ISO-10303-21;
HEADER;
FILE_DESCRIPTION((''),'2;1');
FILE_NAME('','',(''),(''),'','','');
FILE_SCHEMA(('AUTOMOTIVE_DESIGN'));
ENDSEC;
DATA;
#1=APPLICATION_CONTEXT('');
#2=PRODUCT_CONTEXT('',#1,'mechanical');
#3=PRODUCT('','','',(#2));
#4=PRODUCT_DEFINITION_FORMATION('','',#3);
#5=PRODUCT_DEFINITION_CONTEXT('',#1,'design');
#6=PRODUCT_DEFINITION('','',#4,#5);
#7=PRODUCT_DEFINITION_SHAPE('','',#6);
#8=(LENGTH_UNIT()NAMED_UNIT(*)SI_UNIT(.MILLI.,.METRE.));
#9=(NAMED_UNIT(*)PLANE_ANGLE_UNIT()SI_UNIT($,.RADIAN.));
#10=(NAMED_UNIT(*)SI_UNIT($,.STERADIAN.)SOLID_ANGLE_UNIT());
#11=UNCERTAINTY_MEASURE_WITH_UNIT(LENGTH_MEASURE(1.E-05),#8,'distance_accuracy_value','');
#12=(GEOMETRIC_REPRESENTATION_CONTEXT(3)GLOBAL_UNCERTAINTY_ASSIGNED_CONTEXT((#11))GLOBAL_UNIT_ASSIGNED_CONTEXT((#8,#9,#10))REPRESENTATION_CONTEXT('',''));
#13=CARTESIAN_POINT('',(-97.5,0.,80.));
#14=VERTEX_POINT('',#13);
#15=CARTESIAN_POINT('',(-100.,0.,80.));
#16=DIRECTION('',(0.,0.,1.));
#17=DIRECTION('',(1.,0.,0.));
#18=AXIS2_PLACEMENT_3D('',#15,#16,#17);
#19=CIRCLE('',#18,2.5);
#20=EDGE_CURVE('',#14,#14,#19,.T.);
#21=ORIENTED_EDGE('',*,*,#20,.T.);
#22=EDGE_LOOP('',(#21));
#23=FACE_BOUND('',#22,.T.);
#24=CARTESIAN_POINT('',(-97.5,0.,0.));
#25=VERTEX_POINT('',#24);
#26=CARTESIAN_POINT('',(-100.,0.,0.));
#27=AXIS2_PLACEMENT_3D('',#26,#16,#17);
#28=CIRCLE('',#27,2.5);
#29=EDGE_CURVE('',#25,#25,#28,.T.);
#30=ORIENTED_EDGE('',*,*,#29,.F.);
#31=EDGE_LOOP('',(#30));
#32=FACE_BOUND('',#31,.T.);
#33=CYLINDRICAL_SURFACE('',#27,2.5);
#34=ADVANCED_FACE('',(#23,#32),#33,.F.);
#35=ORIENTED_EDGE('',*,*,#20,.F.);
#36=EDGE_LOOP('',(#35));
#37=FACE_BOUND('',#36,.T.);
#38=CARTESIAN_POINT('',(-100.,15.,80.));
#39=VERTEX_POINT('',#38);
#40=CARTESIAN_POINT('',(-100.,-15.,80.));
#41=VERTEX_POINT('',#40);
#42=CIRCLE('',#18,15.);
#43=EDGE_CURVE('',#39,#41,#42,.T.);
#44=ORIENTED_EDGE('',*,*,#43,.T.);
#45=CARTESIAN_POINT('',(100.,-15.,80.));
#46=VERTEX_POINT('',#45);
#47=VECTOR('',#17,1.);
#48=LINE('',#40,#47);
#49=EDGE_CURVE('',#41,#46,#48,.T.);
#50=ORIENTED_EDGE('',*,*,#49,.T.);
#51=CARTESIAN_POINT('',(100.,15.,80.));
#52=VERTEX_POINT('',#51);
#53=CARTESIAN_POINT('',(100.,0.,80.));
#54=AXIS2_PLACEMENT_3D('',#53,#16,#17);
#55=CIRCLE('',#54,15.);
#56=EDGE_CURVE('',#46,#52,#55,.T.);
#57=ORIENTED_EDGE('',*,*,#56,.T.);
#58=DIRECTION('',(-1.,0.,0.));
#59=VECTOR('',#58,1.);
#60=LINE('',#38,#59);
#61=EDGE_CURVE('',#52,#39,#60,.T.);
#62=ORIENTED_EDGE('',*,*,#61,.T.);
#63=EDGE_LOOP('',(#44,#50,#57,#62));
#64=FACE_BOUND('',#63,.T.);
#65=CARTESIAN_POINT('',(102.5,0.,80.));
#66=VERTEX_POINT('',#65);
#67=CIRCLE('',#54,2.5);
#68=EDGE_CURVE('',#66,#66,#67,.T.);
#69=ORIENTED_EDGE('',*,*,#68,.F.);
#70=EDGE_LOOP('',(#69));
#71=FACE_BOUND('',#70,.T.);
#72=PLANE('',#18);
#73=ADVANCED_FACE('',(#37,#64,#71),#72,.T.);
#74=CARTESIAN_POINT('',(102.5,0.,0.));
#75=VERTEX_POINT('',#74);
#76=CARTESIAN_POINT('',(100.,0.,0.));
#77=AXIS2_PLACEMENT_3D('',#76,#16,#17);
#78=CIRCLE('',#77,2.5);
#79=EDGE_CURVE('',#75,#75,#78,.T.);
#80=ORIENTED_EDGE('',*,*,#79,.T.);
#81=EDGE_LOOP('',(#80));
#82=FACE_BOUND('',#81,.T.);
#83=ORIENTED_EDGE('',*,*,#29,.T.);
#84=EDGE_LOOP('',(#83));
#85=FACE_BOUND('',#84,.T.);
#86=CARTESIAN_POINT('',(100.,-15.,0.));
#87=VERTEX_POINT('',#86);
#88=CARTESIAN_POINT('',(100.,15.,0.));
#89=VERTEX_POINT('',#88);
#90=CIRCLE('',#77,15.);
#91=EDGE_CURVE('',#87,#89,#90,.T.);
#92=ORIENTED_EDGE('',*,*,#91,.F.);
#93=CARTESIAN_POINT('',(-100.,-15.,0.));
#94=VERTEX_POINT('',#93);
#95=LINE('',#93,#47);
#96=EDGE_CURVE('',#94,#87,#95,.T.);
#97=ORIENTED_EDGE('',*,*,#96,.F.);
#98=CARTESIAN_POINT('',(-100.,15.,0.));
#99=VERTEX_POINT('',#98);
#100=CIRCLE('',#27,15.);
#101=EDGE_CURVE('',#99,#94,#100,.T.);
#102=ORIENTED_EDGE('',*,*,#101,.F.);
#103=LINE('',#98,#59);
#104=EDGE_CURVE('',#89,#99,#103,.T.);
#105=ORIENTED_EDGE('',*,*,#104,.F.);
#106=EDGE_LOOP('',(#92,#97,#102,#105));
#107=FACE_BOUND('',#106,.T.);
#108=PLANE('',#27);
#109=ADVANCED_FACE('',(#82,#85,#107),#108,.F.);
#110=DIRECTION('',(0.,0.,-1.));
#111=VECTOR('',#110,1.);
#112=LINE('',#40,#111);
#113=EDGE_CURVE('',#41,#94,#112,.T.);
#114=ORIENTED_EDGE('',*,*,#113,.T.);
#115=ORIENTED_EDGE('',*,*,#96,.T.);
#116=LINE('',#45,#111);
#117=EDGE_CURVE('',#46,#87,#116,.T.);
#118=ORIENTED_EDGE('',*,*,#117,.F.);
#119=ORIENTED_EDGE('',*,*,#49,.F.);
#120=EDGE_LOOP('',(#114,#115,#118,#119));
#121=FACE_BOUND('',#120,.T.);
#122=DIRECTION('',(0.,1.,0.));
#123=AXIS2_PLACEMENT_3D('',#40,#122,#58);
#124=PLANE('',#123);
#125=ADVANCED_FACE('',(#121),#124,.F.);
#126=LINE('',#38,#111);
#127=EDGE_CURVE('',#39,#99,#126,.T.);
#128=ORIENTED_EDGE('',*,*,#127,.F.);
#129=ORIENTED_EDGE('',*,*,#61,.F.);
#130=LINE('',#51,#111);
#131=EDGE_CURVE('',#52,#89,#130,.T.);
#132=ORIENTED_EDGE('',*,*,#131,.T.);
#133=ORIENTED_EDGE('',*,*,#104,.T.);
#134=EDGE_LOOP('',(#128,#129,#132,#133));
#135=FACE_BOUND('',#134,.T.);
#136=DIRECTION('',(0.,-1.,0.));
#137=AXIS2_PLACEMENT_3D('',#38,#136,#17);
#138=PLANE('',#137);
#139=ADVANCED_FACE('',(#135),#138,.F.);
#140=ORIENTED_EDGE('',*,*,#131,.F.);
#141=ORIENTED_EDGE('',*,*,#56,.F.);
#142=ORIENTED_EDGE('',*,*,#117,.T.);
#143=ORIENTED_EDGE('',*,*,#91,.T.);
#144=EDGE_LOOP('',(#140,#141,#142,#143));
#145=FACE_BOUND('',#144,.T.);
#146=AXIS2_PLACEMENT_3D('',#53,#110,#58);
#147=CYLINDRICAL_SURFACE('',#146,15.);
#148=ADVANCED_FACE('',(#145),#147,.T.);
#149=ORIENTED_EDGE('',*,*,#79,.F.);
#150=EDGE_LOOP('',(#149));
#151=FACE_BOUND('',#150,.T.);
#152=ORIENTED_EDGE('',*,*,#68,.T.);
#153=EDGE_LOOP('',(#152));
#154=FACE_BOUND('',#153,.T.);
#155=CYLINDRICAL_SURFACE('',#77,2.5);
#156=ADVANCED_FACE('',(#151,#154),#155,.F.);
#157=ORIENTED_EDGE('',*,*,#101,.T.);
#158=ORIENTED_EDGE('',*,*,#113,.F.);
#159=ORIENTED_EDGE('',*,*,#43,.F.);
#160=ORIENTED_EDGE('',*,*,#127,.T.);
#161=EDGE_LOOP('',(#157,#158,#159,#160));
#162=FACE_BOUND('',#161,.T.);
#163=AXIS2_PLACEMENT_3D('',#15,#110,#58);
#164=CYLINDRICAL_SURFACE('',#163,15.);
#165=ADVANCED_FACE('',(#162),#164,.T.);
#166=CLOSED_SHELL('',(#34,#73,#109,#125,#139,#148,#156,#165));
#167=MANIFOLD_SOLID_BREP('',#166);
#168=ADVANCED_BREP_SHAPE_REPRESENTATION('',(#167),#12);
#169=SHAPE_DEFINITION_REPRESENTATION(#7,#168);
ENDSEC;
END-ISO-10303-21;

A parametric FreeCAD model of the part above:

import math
import FreeCAD as App
import Part
import Sketcher

V = App.Vector
Q = App.Units.Quantity

doc = App.newDocument("Part")
params = doc.addObject("Spreadsheet::Sheet", "Params")
for row, (alias, value) in enumerate([
    ("sketch1_radius", "15 mm"),
    ("sketch1_width", "200 mm"),
    ("pad1_length", "80 mm"),
    ("sketch2_diameter", "5 mm"),
], start=1):
    params.set(f"A{row}", alias)
    params.set(f"B{row}", "=" + value)
    params.setAlias(f"B{row}", alias)

body = doc.addObject("PartDesign::Body", "Body")

# Sketch on XY plane
sketch1 = body.newObject("Sketcher::SketchObject", "Sketch")
sketch1.AttachmentSupport = (doc.getObject("XY_Plane"), [""])
sketch1.MapMode = "FlatFace"
sketch1.addGeometry([
    Part.LineSegment(V(100, 15, 0), V(-100, 15, 0)),
    Part.ArcOfCircle(Part.Circle(V(-100, 0, 0), V(0, 0, 1), 15), math.radians(90), math.radians(270)),
    Part.LineSegment(V(-100, -15, 0), V(100, -15, 0)),
    Part.ArcOfCircle(Part.Circle(V(100, 0, 0), V(0, 0, 1), 15), math.radians(-90), math.radians(90)),
], False)
sketch1.addConstraint([
    Sketcher.Constraint("Tangent", 0, 2, 1, 1),
    Sketcher.Constraint("Tangent", 1, 2, 2, 1),
    Sketcher.Constraint("Tangent", 2, 2, 3, 1),
    Sketcher.Constraint("Tangent", 3, 2, 0, 1),
    Sketcher.Constraint("Horizontal", 0),
    Sketcher.Constraint("Horizontal", 2),
    Sketcher.Constraint("Symmetric", 1, 3, 3, 3, -1, 1),
    Sketcher.Constraint("Radius", 1, Q("15 mm")),
    Sketcher.Constraint("DistanceX", 0, 2, 0, 1, Q("200 mm")),
])
sketch1.setExpression("Constraints[7]", "Params.sketch1_radius")
sketch1.setExpression("Constraints[8]", "Params.sketch1_width")
pad1 = body.newObject("PartDesign::Pad", "Pad")
pad1.Profile = sketch1
pad1.setExpression("Length", "Params.pad1_length")

# Sketch on XY plane
sketch2 = body.newObject("Sketcher::SketchObject", "Sketch001")
sketch2.AttachmentSupport = (doc.getObject("XY_Plane"), [""])
sketch2.MapMode = "FlatFace"
sketch2.AttachmentOffset = App.Placement(V(0, 0, 80), App.Rotation())
sketch2.addGeometry([
    Part.Circle(V(-100, 0, 0), V(0, 0, 1), 2.5),
    Part.Circle(V(100, 0, 0), V(0, 0, 1), 2.5),
], False)
sketch2.addConstraint([
    Sketcher.Constraint("Equal", 0, 1),
    Sketcher.Constraint("Symmetric", 0, 3, 1, 3, -1, 1),
    Sketcher.Constraint("PointOnObject", 0, 3, -1),
    Sketcher.Constraint("Diameter", 0, Q("5 mm")),
    Sketcher.Constraint("DistanceX", 0, 3, -1, 1, Q("100 mm")),
])
sketch2.setExpression("Constraints[3]", "Params.sketch2_diameter")
pocket1 = body.newObject("PartDesign::Pocket", "Pocket")
pocket1.Profile = sketch2
pocket1.Type = "ThroughAll"
pocket1.Midplane = True

doc.recompute()
